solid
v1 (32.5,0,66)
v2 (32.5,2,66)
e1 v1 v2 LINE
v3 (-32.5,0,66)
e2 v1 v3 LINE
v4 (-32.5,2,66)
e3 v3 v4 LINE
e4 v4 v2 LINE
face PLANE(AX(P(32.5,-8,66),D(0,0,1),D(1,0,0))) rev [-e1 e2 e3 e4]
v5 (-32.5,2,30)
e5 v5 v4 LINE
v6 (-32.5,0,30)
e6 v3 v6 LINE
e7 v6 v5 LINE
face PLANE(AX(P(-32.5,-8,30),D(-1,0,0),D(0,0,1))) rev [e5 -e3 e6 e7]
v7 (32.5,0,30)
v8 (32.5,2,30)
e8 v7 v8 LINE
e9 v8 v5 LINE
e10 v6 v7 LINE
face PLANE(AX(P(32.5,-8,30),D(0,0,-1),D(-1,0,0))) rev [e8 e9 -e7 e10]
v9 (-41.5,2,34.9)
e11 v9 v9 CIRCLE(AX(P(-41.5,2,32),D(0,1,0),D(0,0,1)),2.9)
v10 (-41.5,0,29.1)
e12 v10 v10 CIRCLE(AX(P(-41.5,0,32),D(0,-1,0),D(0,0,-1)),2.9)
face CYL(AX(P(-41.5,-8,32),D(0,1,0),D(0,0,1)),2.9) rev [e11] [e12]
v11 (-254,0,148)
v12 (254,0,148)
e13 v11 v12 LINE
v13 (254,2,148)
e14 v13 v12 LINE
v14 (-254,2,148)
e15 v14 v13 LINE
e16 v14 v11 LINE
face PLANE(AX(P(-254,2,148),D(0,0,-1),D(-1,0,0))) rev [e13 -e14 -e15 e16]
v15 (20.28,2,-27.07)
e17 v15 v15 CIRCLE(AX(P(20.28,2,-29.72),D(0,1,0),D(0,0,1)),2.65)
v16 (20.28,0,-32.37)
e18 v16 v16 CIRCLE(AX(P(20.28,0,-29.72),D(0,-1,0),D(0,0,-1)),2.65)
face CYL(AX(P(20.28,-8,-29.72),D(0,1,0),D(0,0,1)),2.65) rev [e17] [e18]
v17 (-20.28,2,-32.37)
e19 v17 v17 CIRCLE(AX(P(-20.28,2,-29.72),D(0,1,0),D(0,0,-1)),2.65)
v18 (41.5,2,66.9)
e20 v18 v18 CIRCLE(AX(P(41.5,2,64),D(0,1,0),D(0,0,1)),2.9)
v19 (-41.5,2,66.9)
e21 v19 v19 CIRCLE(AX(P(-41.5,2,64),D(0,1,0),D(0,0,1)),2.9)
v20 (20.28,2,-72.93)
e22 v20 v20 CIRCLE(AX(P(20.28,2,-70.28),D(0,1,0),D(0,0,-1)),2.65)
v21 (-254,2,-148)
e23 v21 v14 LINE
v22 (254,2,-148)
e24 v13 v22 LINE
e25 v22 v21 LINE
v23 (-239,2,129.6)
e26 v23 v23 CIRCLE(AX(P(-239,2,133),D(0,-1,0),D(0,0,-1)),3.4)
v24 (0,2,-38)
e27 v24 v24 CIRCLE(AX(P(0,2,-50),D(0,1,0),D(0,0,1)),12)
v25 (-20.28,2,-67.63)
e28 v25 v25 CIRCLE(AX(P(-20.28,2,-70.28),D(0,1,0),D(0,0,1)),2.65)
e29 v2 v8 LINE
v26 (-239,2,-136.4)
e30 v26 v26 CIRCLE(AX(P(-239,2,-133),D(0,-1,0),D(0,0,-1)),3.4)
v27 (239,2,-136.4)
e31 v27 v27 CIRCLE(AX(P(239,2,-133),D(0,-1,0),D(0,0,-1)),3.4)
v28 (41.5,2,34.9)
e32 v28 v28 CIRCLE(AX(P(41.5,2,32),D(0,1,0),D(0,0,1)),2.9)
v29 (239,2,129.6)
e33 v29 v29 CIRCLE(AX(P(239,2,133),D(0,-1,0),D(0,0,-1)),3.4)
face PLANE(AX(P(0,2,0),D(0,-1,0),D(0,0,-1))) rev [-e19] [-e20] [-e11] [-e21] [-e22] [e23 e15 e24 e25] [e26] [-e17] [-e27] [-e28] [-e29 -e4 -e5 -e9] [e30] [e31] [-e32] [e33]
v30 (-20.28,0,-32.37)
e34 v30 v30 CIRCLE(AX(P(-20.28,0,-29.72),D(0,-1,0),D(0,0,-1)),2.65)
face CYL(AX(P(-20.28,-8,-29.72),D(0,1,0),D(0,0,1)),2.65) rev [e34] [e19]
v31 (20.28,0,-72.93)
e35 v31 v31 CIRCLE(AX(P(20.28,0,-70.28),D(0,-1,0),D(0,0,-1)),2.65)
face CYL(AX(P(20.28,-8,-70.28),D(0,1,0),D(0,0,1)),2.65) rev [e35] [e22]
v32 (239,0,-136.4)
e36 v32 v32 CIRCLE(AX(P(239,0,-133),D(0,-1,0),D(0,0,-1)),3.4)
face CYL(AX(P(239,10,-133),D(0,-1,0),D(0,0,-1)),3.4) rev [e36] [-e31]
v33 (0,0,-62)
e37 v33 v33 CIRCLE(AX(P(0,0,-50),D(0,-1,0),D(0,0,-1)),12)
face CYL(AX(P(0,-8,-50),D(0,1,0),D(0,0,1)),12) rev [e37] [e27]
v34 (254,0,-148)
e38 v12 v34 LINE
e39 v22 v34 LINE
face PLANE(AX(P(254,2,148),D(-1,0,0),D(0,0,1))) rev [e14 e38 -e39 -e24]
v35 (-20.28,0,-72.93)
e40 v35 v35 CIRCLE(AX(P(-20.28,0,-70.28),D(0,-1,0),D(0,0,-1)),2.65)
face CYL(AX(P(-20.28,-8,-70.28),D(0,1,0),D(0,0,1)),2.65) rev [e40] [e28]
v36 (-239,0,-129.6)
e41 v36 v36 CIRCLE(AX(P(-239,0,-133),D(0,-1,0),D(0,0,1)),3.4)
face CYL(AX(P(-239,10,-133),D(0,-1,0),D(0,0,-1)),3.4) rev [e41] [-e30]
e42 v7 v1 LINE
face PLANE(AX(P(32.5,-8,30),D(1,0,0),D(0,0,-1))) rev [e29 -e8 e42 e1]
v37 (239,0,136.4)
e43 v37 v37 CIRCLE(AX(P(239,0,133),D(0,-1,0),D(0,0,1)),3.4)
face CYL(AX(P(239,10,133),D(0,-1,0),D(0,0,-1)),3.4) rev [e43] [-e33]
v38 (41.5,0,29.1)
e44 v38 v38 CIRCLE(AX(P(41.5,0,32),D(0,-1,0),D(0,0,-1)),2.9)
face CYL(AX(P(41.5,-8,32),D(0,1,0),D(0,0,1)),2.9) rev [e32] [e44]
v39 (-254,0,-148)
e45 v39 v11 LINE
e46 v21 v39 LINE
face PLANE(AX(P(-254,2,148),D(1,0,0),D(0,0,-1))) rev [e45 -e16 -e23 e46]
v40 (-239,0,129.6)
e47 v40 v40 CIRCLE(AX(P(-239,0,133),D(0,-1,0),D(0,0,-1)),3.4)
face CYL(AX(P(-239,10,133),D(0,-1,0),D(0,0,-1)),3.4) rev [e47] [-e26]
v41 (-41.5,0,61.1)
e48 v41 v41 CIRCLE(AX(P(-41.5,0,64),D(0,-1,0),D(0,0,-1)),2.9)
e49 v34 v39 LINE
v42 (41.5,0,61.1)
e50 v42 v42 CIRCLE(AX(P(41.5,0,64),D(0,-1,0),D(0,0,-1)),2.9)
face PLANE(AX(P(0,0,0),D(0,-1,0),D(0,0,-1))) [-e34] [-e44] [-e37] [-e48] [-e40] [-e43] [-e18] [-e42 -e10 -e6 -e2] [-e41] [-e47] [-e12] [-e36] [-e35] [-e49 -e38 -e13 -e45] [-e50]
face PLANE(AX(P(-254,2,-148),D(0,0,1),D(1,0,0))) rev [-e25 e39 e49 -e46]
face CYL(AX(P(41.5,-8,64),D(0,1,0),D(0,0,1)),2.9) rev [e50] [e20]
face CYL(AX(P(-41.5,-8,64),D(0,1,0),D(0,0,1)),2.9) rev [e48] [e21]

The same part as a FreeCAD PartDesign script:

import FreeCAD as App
import Part
import Sketcher

V = App.Vector

doc = App.newDocument("Part")
body = doc.addObject("PartDesign::Body", "Body")

# Sketch on XZ plane
sketch1 = body.newObject("Sketcher::SketchObject", "Sketch")
sketch1.AttachmentSupport = (doc.getObject("XZ_Plane"), [""])
sketch1.MapMode = "FlatFace"
sketch1.addGeometry([
    Part.LineSegment(V(-254, -148, 0), V(-254, 148, 0)),
    Part.LineSegment(V(-254, 148, 0), V(254, 148, 0)),
    Part.LineSegment(V(254, 148, 0), V(254, -148, 0)),
    Part.LineSegment(V(254, -148, 0), V(-254, -148, 0)),
], False)
sketch1.addConstraint([
    Sketcher.Constraint("Coincident", 0, 2, 1, 1),
    Sketcher.Constraint("Coincident", 1, 2, 2, 1),
    Sketcher.Constraint("Coincident", 2, 2, 3, 1),
    Sketcher.Constraint("Coincident", 3, 2, 0, 1),
    Sketcher.Constraint("Vertical", 0),
    Sketcher.Constraint("Horizontal", 1),
    Sketcher.Constraint("Vertical", 2),
    Sketcher.Constraint("Horizontal", 3),
    Sketcher.Constraint("Symmetric", 0, 2, 2, 2, -1, 1),
    Sketcher.Constraint("DistanceX", 1, 1, 1, 2, 508.0),
    Sketcher.Constraint("DistanceY", 0, 1, 0, 2, 296.0),
])
pad1 = body.newObject("PartDesign::Pad", "Pad")
pad1.Profile = sketch1
pad1.Length = 2
pad1.Reversed = True

# Sketch on XZ plane
sketch2 = body.newObject("Sketcher::SketchObject", "Sketch001")
sketch2.AttachmentSupport = (doc.getObject("XZ_Plane"), [""])
sketch2.MapMode = "FlatFace"
sketch2.AttachmentOffset = App.Placement(V(0, 0, -2), App.Rotation())
sketch2.addGeometry([
    Part.Circle(V(0, -50, 0), V(0, 0, 1), 12),  # 0
    Part.Circle(V(-20.3, -70.3, 0), V(0, 0, 1), 2.6),  # 1
    Part.Circle(V(-20.3, -29.7, 0), V(0, 0, 1), 2.6),  # 2
    Part.Circle(V(20.3, -29.7, 0), V(0, 0, 1), 2.6),  # 3
    Part.Circle(V(20.3, -70.3, 0), V(0, 0, 1), 2.6),  # 4
    Part.Circle(V(41.5, 32, 0), V(0, 0, 1), 2.9),  # 5
    Part.Circle(V(41.5, 64, 0), V(0, 0, 1), 2.9),  # 6
    Part.Circle(V(-41.5, 64, 0), V(0, 0, 1), 2.9),  # 7
    Part.Circle(V(-41.5, 32, 0), V(0, 0, 1), 2.9),  # 8
    Part.LineSegment(V(-32.5, 30, 0), V(-32.5, 66, 0)),  # 9
    Part.LineSegment(V(-32.5, 66, 0), V(32.5, 66, 0)),  # 10
    Part.LineSegment(V(32.5, 66, 0), V(32.5, 30, 0)),  # 11
    Part.LineSegment(V(32.5, 30, 0), V(-32.5, 30, 0)),  # 12
], False)
sketch2.addConstraint([
    Sketcher.Constraint("Coincident", 9, 2, 10, 1),
    Sketcher.Constraint("Coincident", 10, 2, 11, 1),
    Sketcher.Constraint("Coincident", 11, 2, 12, 1),
    Sketcher.Constraint("Coincident", 12, 2, 9, 1),
    Sketcher.Constraint("Vertical", 9),
    Sketcher.Constraint("Horizontal", 10),
    Sketcher.Constraint("Vertical", 11),
    Sketcher.Constraint("Horizontal", 12),
    Sketcher.Constraint("Equal", 1, 2),
    Sketcher.Constraint("Equal", 2, 3),
    Sketcher.Constraint("Equal", 3, 4),
    Sketcher.Constraint("Equal", 5, 6),
    Sketcher.Constraint("Equal", 6, 7),
    Sketcher.Constraint("Equal", 7, 8),
    Sketcher.Constraint("Symmetric", 2, 3, 3, 3, -2),
    Sketcher.Constraint("Symmetric", 1, 3, 4, 3, -2),
    Sketcher.Constraint("Symmetric", 6, 3, 7, 3, -2),
    Sketcher.Constraint("Symmetric", 5, 3, 8, 3, -2),
    Sketcher.Constraint("PointOnObject", 0, 3, -2),
    Sketcher.Constraint("Vertical", 1, 3, 2, 3),
    Sketcher.Constraint("Vertical", 5, 3, 6, 3),
    Sketcher.Constraint("Diameter", 0, 24.0),
    Sketcher.Constraint("Diameter", 1, 5.3),
    Sketcher.Constraint("Diameter", 5, 5.8),
    Sketcher.Constraint("DistanceX", 10, 1, 10, 2, 65.0),
    Sketcher.Constraint("DistanceY", 9, 1, 9, 2, 36.0),
    Sketcher.Constraint("DistanceY", 0, 3, -1, 1, 50.0),
    Sketcher.Constraint("DistanceY", -1, 1, 5, 3, 32.0),
    Sketcher.Constraint("DistanceY", -1, 1, 6, 3, 64.0),
    Sketcher.Constraint("DistanceY", -1, 1, 9, 2, 66.0),
    Sketcher.Constraint("DistanceX", 7, 3, 6, 3, 83.0),
    Sketcher.Constraint("DistanceX", 7, 3, 9, 2, 9.0),
    Sketcher.Constraint("DistanceX", 1, 3, -1, 1, 20.28),
    Sketcher.Constraint("DistanceY", 1, 3, -1, 1, 70.28),
    Sketcher.Constraint("DistanceY", 2, 3, -1, 1, 29.72),
])
pocket1 = body.newObject("PartDesign::Pocket", "Pocket")
pocket1.Profile = sketch2
pocket1.Length = 10
pocket1.Reversed = True

# Sketch on XZ plane
sketch3 = body.newObject("Sketcher::SketchObject", "Sketch002")
sketch3.AttachmentSupport = (doc.getObject("XZ_Plane"), [""])
sketch3.MapMode = "FlatFace"
sketch3.addGeometry([
    Part.Circle(V(-239, 133, 0), V(0, 0, 1), 3.4),
    Part.Circle(V(239, 133, 0), V(0, 0, 1), 3.4),
    Part.Circle(V(-239, -133, 0), V(0, 0, 1), 3.4),
    Part.Circle(V(239, -133, 0), V(0, 0, 1), 3.4),
], False)
sketch3.addConstraint([
    Sketcher.Constraint("Equal", 0, 1),
    Sketcher.Constraint("Equal", 1, 2),
    Sketcher.Constraint("Equal", 2, 3),
    Sketcher.Constraint("Symmetric", 1, 3, 2, 3, -1, 1),
    Sketcher.Constraint("Symmetric", 0, 3, 3, 3, -1, 1),
    Sketcher.Constraint("Symmetric", 0, 3, 1, 3, -2),
    Sketcher.Constraint("Diameter", 0, 6.8),
    Sketcher.Constraint("DistanceX", 0, 3, -1, 1, 239.0),
    Sketcher.Constraint("DistanceY", -1, 1, 0, 3, 133.0),
])
pocket2 = body.newObject("PartDesign::Pocket", "Pocket001")
pocket2.Profile = sketch3
pocket2.Length = 10

doc.recompute()
